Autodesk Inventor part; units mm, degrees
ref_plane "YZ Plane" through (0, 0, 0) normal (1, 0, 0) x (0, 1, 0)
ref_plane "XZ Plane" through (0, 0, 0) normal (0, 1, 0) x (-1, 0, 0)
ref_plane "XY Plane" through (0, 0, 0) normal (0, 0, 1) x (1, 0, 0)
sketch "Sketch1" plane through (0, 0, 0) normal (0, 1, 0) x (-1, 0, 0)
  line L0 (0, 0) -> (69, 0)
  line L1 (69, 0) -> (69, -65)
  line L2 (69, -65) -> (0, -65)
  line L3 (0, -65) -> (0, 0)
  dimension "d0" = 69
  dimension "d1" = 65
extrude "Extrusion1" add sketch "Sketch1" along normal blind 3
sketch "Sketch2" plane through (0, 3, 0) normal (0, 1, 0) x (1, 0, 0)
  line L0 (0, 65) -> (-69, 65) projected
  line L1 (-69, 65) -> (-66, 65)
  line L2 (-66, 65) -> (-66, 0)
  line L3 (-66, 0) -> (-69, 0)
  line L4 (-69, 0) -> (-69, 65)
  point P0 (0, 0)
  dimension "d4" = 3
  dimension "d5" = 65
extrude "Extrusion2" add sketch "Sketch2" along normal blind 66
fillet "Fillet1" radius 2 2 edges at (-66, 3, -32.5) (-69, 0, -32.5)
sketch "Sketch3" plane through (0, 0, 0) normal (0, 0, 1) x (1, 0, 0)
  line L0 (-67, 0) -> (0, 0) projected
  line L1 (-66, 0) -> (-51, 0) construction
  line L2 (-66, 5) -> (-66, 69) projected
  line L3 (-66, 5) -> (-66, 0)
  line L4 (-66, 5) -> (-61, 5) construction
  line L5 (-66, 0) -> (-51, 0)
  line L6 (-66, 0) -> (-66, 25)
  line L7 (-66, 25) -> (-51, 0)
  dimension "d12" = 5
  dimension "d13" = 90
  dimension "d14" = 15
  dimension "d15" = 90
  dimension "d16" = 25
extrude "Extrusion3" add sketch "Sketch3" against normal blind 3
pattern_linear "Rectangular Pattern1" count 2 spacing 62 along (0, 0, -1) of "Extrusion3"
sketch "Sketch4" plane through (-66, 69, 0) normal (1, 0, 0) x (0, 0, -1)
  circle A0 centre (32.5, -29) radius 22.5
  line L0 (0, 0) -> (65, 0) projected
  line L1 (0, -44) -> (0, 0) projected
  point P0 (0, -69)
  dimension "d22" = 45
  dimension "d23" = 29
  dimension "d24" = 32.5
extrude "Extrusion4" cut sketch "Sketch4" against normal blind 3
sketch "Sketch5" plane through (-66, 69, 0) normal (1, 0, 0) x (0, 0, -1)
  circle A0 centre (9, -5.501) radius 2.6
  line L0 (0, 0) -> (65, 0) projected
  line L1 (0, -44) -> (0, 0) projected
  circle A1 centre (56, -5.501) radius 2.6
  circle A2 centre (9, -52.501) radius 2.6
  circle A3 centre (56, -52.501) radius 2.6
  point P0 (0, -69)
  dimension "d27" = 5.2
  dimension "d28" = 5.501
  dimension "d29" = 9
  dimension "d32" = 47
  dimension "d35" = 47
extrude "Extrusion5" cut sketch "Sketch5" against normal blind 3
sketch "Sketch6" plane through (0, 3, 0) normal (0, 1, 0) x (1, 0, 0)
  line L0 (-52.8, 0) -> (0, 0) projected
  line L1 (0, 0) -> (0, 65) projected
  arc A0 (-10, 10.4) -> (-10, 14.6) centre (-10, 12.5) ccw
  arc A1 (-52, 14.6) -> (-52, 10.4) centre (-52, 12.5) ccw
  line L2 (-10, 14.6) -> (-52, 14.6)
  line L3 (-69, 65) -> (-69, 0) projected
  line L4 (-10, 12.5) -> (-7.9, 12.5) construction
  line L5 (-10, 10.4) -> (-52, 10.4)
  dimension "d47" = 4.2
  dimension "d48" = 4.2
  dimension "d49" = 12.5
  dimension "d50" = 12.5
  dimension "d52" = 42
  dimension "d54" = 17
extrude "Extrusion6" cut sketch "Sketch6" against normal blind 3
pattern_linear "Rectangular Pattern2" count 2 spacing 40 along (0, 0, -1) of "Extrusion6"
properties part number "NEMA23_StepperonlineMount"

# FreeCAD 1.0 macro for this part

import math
import FreeCAD as App
import Part
import Sketcher

V = App.Vector


def edges_at(feature, points):
    """Names of the edges that pass closest to the given points."""
    edges = feature.Shape.Edges
    near = lambda p: min(range(len(edges)), key=lambda i: edges[i].distToShape(Part.Vertex(*p))[0])
    return sorted({f"Edge{near(p) + 1}" for p in points})


def add_polygon(sketch, points):
    """Adds a closed chain of lines whose ends are joined by coincident constraints."""
    first, n = sketch.GeometryCount, len(points)
    for a, b in zip(points, points[1:] + points[:1]):
        sketch.addGeometry(Part.LineSegment(App.Vector(*a, 0), App.Vector(*b, 0)), False)
    for i in range(n):
        sketch.addConstraint(Sketcher.Constraint("Coincident", first + i, 2, first + (i + 1) % n, 1))

doc = App.newDocument("Part")
body = doc.addObject("PartDesign::Body", "Body")

# Sketch on XZ plane
sketch1 = doc.addObject("Sketcher::SketchObject", "Sketch")
body.addObject(sketch1)
sketch1.AttachmentSupport = (doc.XZ_Plane, [""])
sketch1.MapMode = "FlatFace"
add_polygon(sketch1, [(-69, 0), (0, 0), (0, -65), (-69, -65)])  # lines 0-3
sketch1.addConstraint([
    Sketcher.Constraint("Horizontal", 0),
    Sketcher.Constraint("Vertical", 1),
    Sketcher.Constraint("Horizontal", 2),
    Sketcher.Constraint("Vertical", 3),
    Sketcher.Constraint("Coincident", 0, 2, -1, 1),
    Sketcher.Constraint("DistanceX", 0, 1, 0, 2, 69.0),
    Sketcher.Constraint("DistanceY", 1, 2, 1, 1, 65.0),
])
pad1 = doc.addObject("PartDesign::Pad", "Pad")
body.addObject(pad1)
pad1.Profile = sketch1
pad1.Length = 3
pad1.Reversed = True

# Sketch on XZ plane
sketch2 = doc.addObject("Sketcher::SketchObject", "Sketch001")
body.addObject(sketch2)
sketch2.AttachmentSupport = (doc.XZ_Plane, [""])
sketch2.MapMode = "FlatFace"
sketch2.AttachmentOffset = App.Placement(V(0, 0, -3), App.Rotation())
add_polygon(sketch2, [(-66, 0), (-66, -65), (-69, -65), (-69, 0)])  # lines 0-3
sketch2.addConstraint([
    Sketcher.Constraint("Vertical", 0),
    Sketcher.Constraint("Horizontal", 1),
    Sketcher.Constraint("Vertical", 2),
    Sketcher.Constraint("Horizontal", 3),
    Sketcher.Constraint("PointOnObject", 2, 2, -1),
    Sketcher.Constraint("DistanceX", 1, 2, 1, 1, 3.0),
    Sketcher.Constraint("DistanceY", 0, 2, 0, 1, 65.0),
    Sketcher.Constraint("DistanceX", 0, 2, -1, 1, 66.0),
])
pad2 = doc.addObject("PartDesign::Pad", "Pad001")
body.addObject(pad2)
pad2.Profile = sketch2
pad2.Length = 66
pad2.Reversed = True
doc.recompute()

fillet = doc.addObject("PartDesign::Fillet", "Fillet")
body.addObject(fillet)
fillet.Base = (pad2, edges_at(pad2, [(-66, 3, -32.5), (-69, 0, -32.5)]))
fillet.Radius = 2

# Sketch on XY plane
sketch3 = doc.addObject("Sketcher::SketchObject", "Sketch002")
body.addObject(sketch3)
sketch3.AttachmentSupport = (doc.XY_Plane, [""])
sketch3.MapMode = "FlatFace"
add_polygon(sketch3, [(-66, 25), (-66, 0), (-51, 0)])  # lines 0-2
sketch3.addConstraint([
    Sketcher.Constraint("Vertical", 0),
    Sketcher.Constraint("Horizontal", 1),
    Sketcher.Constraint("PointOnObject", 0, 2, -1),
    Sketcher.Constraint("DistanceX", 1, 1, 1, 2, 15.0),
    Sketcher.Constraint("DistanceY", 0, 2, 0, 1, 25.0),
    Sketcher.Constraint("DistanceX", 0, 2, -1, 1, 66.0),
])
pad3 = doc.addObject("PartDesign::Pad", "Pad002")
body.addObject(pad3)
pad3.Profile = sketch3
pad3.Length = 3
pad3.Reversed = True
doc.recompute()

linearpattern = doc.addObject("PartDesign::LinearPattern", "LinearPattern")
body.addObject(linearpattern)
linearpattern.Originals = [pad3]
linearpattern.Direction = (doc.Z_Axis, [""])
linearpattern.Mode = "offset"
linearpattern.Offset = 62
linearpattern.Occurrences = 2
linearpattern.Reversed = True
body.Tip = linearpattern

# Sketch on YZ plane
sketch4 = doc.addObject("Sketcher::SketchObject", "Sketch003")
body.addObject(sketch4)
sketch4.AttachmentSupport = (doc.YZ_Plane, [""])
sketch4.MapMode = "FlatFace"
sketch4.AttachmentOffset = App.Placement(V(0, 0, -66), App.Rotation())
sketch4.addGeometry(Part.Circle(V(40, -32.5, 0), V(0, 0, 1), 22.5), False)
sketch4.addConstraint([
    Sketcher.Constraint("Diameter", 0, 45.0),
    Sketcher.Constraint("DistanceY", 0, 3, -1, 1, 32.5),
    Sketcher.Constraint("DistanceX", -1, 1, 0, 3, 40.0),
])
pocket1 = doc.addObject("PartDesign::Pocket", "Pocket")
body.addObject(pocket1)
pocket1.Profile = sketch4
pocket1.Length = 3

# Sketch on YZ plane
sketch5 = doc.addObject("Sketcher::SketchObject", "Sketch004")
body.addObject(sketch5)
sketch5.AttachmentSupport = (doc.YZ_Plane, [""])
sketch5.MapMode = "FlatFace"
sketch5.AttachmentOffset = App.Placement(V(0, 0, -66), App.Rotation())
sketch5.addGeometry([
    Part.Circle(V(63.499, -9, 0), V(0, 0, 1), 2.6),
    Part.Circle(V(63.499, -56, 0), V(0, 0, 1), 2.6),
    Part.Circle(V(16.499, -9, 0), V(0, 0, 1), 2.6),
    Part.Circle(V(16.499, -56, 0), V(0, 0, 1), 2.6),
], False)
sketch5.addConstraint([
    Sketcher.Constraint("Equal", 0, 1),
    Sketcher.Constraint("Equal", 1, 2),
    Sketcher.Constraint("Equal", 2, 3),
    Sketcher.Constraint("Horizontal", 0, 3, 2, 3),
    Sketcher.Constraint("Horizontal", 1, 3, 3, 3),
    Sketcher.Constraint("Vertical", 0, 3, 1, 3),
    Sketcher.Constraint("Vertical", 2, 3, 3, 3),
    Sketcher.Constraint("Diameter", 0, 5.2),
    Sketcher.Constraint("DistanceY", 0, 3, -1, 1, 9.0),
    Sketcher.Constraint("DistanceY", 1, 3, 0, 3, 47.0),
    Sketcher.Constraint("DistanceX", 2, 3, 0, 3, 47.0),
    Sketcher.Constraint("DistanceX", -1, 1, 0, 3, 63.499),
])
pocket2 = doc.addObject("PartDesign::Pocket", "Pocket001")
body.addObject(pocket2)
pocket2.Profile = sketch5
pocket2.Length = 3

# Sketch on XZ plane
sketch6 = doc.addObject("Sketcher::SketchObject", "Sketch005")
body.addObject(sketch6)
sketch6.AttachmentSupport = (doc.XZ_Plane, [""])
sketch6.MapMode = "FlatFace"
sketch6.AttachmentOffset = App.Placement(V(0, 0, -3), App.Rotation())
sketch6.addGeometry([
    Part.LineSegment(V(-52, -10.4, 0), V(-10, -10.4, 0)),
    Part.ArcOfCircle(Part.Circle(V(-10, -12.5, 0), V(0, 0, 1), 2.1), math.radians(-90), math.radians(90)),
    Part.LineSegment(V(-10, -14.6, 0), V(-52, -14.6, 0)),
    Part.ArcOfCircle(Part.Circle(V(-52, -12.5, 0), V(0, 0, 1), 2.1), math.radians(90), math.radians(270)),
], False)
sketch6.addConstraint([
    Sketcher.Constraint("Tangent", 0, 2, 1, 2),
    Sketcher.Constraint("Tangent", 1, 1, 2, 1),
    Sketcher.Constraint("Tangent", 2, 2, 3, 2),
    Sketcher.Constraint("Tangent", 3, 1, 0, 1),
    Sketcher.Constraint("Horizontal", 0),
    Sketcher.Constraint("Horizontal", 2),
    Sketcher.Constraint("Radius", 1, 2.1),
    Sketcher.Constraint("DistanceX", 0, 1, 0, 2, 42.0),
    Sketcher.Constraint("DistanceY", 1, 3, -1, 1, 12.5),
    Sketcher.Constraint("DistanceX", 1, 3, -1, 1, 10.0),
])
pocket3 = doc.addObject("PartDesign::Pocket", "Pocket002")
body.addObject(pocket3)
pocket3.Profile = sketch6
pocket3.Length = 3
pocket3.Reversed = True
doc.recompute()

linearpattern2 = doc.addObject("PartDesign::LinearPattern", "LinearPattern001")
body.addObject(linearpattern2)
linearpattern2.Originals = [pocket3]
linearpattern2.Direction = (doc.Z_Axis, [""])
linearpattern2.Mode = "offset"
linearpattern2.Offset = 40
linearpattern2.Occurrences = 2
linearpattern2.Reversed = True
body.Tip = linearpattern2

doc.recompute()
